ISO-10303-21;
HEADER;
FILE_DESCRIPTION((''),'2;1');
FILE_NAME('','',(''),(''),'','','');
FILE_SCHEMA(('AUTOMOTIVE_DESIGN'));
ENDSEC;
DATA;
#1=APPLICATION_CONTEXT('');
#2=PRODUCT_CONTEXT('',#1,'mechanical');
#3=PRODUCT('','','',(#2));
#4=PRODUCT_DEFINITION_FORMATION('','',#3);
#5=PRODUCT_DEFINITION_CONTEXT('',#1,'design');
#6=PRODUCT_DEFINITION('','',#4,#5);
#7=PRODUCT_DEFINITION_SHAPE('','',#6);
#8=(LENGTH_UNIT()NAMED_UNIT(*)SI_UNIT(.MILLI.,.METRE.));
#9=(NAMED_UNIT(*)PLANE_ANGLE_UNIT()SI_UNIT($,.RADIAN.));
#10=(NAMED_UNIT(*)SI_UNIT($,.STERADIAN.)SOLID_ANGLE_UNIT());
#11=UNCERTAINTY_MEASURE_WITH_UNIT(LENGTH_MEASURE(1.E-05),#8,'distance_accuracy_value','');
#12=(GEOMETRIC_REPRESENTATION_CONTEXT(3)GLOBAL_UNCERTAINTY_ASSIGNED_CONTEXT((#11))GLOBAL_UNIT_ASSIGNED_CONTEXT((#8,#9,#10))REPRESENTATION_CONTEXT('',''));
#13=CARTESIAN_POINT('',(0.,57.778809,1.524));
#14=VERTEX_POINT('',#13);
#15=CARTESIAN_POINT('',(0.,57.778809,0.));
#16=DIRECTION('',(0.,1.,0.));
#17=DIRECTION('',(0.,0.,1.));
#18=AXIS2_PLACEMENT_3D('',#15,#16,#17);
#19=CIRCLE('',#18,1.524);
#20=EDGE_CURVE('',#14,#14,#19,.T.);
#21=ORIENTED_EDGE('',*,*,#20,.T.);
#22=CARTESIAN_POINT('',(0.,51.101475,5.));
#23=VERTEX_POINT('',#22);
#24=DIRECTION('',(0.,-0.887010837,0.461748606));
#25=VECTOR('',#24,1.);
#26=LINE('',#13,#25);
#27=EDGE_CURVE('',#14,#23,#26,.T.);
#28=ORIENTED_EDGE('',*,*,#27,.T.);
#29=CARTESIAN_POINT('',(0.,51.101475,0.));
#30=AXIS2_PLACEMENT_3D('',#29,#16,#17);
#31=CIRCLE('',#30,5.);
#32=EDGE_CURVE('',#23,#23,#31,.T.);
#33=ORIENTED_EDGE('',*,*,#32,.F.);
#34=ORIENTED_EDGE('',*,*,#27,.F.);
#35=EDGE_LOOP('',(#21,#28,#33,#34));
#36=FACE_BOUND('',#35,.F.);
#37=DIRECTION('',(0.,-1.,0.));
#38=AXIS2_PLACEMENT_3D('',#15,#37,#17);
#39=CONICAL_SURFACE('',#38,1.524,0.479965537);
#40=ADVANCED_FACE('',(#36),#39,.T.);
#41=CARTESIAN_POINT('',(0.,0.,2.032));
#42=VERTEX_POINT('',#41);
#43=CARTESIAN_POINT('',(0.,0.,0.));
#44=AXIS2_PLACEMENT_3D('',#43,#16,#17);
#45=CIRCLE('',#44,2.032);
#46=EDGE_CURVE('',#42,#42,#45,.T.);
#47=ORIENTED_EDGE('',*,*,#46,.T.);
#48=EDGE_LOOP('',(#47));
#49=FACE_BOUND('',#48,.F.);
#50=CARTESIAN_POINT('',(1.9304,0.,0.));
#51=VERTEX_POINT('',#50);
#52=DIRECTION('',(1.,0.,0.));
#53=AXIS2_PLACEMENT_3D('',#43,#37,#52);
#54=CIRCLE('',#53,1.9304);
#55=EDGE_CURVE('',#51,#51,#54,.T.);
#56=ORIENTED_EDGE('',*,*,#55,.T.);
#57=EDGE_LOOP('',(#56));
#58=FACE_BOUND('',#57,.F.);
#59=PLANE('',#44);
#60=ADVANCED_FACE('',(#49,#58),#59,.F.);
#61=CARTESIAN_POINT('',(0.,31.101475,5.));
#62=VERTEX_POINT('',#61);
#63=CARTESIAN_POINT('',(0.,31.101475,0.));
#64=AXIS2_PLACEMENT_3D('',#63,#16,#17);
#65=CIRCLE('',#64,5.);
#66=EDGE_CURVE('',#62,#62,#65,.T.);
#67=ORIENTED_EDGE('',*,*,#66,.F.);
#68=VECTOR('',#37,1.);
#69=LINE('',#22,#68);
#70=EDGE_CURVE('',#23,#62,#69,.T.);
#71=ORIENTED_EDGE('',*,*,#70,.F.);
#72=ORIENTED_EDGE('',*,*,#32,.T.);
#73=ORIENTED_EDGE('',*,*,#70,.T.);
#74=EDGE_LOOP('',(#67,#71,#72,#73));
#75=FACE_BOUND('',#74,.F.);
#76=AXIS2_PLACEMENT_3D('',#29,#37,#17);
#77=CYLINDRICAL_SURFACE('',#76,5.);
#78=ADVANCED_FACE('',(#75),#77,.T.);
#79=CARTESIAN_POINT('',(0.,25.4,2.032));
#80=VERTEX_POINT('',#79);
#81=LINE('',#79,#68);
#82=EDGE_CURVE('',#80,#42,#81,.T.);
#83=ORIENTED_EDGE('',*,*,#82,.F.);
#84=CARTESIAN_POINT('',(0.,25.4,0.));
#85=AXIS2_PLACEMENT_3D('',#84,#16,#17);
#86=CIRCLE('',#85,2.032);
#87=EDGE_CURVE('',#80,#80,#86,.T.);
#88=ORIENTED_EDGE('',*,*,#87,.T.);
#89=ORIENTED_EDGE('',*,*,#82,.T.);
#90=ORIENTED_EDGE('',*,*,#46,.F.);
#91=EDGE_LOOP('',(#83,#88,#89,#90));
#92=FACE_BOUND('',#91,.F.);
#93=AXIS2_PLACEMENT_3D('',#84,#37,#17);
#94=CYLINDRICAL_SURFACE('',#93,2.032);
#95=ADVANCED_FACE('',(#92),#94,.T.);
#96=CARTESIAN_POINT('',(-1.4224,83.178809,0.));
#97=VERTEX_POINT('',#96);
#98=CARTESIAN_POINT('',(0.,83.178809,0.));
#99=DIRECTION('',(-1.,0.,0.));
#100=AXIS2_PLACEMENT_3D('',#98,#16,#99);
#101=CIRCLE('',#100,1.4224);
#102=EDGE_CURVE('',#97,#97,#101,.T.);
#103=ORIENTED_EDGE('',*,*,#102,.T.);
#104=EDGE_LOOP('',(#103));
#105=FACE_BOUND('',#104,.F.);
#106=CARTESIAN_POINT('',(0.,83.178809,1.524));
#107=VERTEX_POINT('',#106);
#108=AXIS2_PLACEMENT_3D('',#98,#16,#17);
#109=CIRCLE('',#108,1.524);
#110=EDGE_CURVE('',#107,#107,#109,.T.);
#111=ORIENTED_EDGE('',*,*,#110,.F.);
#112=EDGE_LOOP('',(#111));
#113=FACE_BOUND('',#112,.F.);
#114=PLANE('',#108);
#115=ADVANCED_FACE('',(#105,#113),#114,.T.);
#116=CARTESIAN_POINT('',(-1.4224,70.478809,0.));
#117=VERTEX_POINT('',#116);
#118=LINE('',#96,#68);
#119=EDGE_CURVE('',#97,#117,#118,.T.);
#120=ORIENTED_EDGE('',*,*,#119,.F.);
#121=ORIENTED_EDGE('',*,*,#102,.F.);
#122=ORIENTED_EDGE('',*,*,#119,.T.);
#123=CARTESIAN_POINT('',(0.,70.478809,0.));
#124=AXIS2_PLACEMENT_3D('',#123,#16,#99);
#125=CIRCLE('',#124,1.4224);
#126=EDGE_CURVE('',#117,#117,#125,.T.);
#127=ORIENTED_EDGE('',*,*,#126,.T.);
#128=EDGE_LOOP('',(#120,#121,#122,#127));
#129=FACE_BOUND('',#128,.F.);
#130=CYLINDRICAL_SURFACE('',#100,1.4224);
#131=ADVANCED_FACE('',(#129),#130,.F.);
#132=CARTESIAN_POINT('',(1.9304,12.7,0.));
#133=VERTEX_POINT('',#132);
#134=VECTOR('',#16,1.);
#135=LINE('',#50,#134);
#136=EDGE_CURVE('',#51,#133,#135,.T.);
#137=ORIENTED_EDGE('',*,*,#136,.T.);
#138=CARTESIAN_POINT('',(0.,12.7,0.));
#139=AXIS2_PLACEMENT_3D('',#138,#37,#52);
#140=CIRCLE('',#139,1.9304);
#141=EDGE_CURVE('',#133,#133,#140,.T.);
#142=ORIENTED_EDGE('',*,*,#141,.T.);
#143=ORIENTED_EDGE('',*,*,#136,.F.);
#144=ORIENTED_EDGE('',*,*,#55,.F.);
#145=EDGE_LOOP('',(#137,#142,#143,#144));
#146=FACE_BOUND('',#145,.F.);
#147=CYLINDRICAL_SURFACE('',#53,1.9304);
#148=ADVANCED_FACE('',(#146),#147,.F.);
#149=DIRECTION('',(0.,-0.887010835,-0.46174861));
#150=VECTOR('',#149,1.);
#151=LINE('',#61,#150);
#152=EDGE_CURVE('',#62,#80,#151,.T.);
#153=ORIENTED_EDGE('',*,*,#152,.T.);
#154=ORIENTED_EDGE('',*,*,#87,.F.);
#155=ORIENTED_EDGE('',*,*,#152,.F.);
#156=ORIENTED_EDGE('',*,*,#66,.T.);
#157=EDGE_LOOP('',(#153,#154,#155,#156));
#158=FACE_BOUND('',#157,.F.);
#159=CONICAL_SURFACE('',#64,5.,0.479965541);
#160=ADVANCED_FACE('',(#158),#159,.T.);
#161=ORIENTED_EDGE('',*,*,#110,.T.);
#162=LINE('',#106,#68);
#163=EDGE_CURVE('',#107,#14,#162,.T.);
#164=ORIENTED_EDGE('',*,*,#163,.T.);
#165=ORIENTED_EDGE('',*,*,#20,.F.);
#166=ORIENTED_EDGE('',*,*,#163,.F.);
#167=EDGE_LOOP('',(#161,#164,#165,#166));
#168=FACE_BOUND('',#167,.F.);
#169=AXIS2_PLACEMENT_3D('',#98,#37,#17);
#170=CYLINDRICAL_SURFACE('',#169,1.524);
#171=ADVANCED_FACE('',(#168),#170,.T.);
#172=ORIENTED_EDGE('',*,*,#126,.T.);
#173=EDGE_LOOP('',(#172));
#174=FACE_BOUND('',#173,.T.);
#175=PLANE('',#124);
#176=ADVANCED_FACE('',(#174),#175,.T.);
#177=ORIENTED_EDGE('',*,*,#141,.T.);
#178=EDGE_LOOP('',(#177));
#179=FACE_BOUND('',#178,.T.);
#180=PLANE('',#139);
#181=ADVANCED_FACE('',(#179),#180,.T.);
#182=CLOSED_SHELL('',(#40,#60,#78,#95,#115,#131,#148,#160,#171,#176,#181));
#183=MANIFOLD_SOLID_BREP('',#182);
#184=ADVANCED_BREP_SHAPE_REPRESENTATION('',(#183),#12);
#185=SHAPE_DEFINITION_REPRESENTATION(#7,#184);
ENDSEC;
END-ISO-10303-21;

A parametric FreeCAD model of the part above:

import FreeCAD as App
import Part
import Sketcher
Q = App.Units.Quantity

doc = App.newDocument("Part")
body = doc.addObject("PartDesign::Body", "Body")

# Sketch on YZ plane
sketch1 = doc.addObject("Sketcher::SketchObject", "Sketch")
body.addObject(sketch1)
sketch1.AttachmentSupport = (doc.YZ_Plane, [""])
sketch1.MapMode = "FlatFace"
sketch1.addGeometry([
    Part.LineSegment(App.Vector(0, 2, 0), App.Vector(0, 0, 0)),  # 0
    Part.LineSegment(App.Vector(0, 0, 0), App.Vector(83.2, 0, 0)),  # 1
    Part.LineSegment(App.Vector(83.2, 0, 0), App.Vector(83.2, 1.5, 0)),  # 2
    Part.LineSegment(App.Vector(83.2, 1.5, 0), App.Vector(57.8, 1.5, 0)),  # 3
    Part.LineSegment(App.Vector(57.8, 1.5, 0), App.Vector(51.1, 5, 0)),  # 4
    Part.LineSegment(App.Vector(51.1, 5, 0), App.Vector(31.1, 5, 0)),  # 5
    Part.LineSegment(App.Vector(31.1, 5, 0), App.Vector(25.4, 2, 0)),  # 6
    Part.LineSegment(App.Vector(25.4, 2, 0), App.Vector(0, 2, 0)),  # 7
], False)
sketch1.addConstraint([
    Sketcher.Constraint("Coincident", 0, 2, 1, 1),
    Sketcher.Constraint("Coincident", 1, 2, 2, 1),
    Sketcher.Constraint("Coincident", 2, 2, 3, 1),
    Sketcher.Constraint("Coincident", 3, 2, 4, 1),
    Sketcher.Constraint("Coincident", 4, 2, 5, 1),
    Sketcher.Constraint("Coincident", 5, 2, 6, 1),
    Sketcher.Constraint("Coincident", 6, 2, 7, 1),
    Sketcher.Constraint("Coincident", 7, 2, 0, 1),
    Sketcher.Constraint("Vertical", 0),
    Sketcher.Constraint("Horizontal", 1),
    Sketcher.Constraint("Vertical", 2),
    Sketcher.Constraint("Horizontal", 3),
    Sketcher.Constraint("Horizontal", 5),
    Sketcher.Constraint("Horizontal", 7),
    Sketcher.Constraint("Coincident", 0, 2, -1, 1),
    Sketcher.Constraint("Equal", 3, 7),
    Sketcher.Constraint("DistanceX", 3, 2, 3, 1, Q("1 in")),
    Sketcher.Constraint("DistanceY", 0, 2, 0, 1, Q("0.08 in")),
    Sketcher.Constraint("DistanceY", 2, 1, 2, 2, Q("0.06 in")),
    Sketcher.Constraint("Angle", 4, Q("152.5 deg")),
    Sketcher.Constraint("Angle", 6, Q("-152.5 deg")),
    Sketcher.Constraint("DistanceX", 5, 2, 5, 1, Q("20 mm")),
    Sketcher.Constraint("DistanceX", 1, 1, 1, 2, Q("83.178809 mm")),
])
revolution = doc.addObject("PartDesign::Revolution", "Revolution")
body.addObject(revolution)
revolution.Profile = sketch1
revolution.ReferenceAxis = (sketch1, ["H_Axis"])
revolution.Angle = 360

# Sketch on XZ plane
sketch2 = doc.addObject("Sketcher::SketchObject", "Sketch001")
body.addObject(sketch2)
sketch2.AttachmentSupport = (doc.XZ_Plane, [""])
sketch2.MapMode = "FlatFace"
sketch2.addGeometry(Part.Circle(App.Vector(0, 0, 0), App.Vector(0, 0, 1), 1.9), False)
sketch2.addConstraint([
    Sketcher.Constraint("Coincident", 0, 3, -1, 1),
    Sketcher.Constraint("Diameter", 0, Q("0.152 in")),
])
pocket1 = doc.addObject("PartDesign::Pocket", "Pocket")
body.addObject(pocket1)
pocket1.Profile = sketch2
pocket1.Length = Q("0.5 in")

# Sketch on XZ plane
sketch3 = doc.addObject("Sketcher::SketchObject", "Sketch002")
body.addObject(sketch3)
sketch3.AttachmentSupport = (doc.XZ_Plane, [""])
sketch3.MapMode = "FlatFace"
sketch3.AttachmentOffset = App.Placement(App.Vector(0, 0, -83.178809), App.Rotation())
sketch3.addGeometry(Part.Circle(App.Vector(0, 0, 0), App.Vector(0, 0, 1), 1.4), False)
sketch3.addConstraint([
    Sketcher.Constraint("Coincident", 0, 3, -1, 1),
    Sketcher.Constraint("Diameter", 0, Q("0.112 in")),
])
pocket2 = doc.addObject("PartDesign::Pocket", "Pocket001")
body.addObject(pocket2)
pocket2.Profile = sketch3
pocket2.Length = Q("0.5 in")
pocket2.Reversed = True

doc.recompute()
